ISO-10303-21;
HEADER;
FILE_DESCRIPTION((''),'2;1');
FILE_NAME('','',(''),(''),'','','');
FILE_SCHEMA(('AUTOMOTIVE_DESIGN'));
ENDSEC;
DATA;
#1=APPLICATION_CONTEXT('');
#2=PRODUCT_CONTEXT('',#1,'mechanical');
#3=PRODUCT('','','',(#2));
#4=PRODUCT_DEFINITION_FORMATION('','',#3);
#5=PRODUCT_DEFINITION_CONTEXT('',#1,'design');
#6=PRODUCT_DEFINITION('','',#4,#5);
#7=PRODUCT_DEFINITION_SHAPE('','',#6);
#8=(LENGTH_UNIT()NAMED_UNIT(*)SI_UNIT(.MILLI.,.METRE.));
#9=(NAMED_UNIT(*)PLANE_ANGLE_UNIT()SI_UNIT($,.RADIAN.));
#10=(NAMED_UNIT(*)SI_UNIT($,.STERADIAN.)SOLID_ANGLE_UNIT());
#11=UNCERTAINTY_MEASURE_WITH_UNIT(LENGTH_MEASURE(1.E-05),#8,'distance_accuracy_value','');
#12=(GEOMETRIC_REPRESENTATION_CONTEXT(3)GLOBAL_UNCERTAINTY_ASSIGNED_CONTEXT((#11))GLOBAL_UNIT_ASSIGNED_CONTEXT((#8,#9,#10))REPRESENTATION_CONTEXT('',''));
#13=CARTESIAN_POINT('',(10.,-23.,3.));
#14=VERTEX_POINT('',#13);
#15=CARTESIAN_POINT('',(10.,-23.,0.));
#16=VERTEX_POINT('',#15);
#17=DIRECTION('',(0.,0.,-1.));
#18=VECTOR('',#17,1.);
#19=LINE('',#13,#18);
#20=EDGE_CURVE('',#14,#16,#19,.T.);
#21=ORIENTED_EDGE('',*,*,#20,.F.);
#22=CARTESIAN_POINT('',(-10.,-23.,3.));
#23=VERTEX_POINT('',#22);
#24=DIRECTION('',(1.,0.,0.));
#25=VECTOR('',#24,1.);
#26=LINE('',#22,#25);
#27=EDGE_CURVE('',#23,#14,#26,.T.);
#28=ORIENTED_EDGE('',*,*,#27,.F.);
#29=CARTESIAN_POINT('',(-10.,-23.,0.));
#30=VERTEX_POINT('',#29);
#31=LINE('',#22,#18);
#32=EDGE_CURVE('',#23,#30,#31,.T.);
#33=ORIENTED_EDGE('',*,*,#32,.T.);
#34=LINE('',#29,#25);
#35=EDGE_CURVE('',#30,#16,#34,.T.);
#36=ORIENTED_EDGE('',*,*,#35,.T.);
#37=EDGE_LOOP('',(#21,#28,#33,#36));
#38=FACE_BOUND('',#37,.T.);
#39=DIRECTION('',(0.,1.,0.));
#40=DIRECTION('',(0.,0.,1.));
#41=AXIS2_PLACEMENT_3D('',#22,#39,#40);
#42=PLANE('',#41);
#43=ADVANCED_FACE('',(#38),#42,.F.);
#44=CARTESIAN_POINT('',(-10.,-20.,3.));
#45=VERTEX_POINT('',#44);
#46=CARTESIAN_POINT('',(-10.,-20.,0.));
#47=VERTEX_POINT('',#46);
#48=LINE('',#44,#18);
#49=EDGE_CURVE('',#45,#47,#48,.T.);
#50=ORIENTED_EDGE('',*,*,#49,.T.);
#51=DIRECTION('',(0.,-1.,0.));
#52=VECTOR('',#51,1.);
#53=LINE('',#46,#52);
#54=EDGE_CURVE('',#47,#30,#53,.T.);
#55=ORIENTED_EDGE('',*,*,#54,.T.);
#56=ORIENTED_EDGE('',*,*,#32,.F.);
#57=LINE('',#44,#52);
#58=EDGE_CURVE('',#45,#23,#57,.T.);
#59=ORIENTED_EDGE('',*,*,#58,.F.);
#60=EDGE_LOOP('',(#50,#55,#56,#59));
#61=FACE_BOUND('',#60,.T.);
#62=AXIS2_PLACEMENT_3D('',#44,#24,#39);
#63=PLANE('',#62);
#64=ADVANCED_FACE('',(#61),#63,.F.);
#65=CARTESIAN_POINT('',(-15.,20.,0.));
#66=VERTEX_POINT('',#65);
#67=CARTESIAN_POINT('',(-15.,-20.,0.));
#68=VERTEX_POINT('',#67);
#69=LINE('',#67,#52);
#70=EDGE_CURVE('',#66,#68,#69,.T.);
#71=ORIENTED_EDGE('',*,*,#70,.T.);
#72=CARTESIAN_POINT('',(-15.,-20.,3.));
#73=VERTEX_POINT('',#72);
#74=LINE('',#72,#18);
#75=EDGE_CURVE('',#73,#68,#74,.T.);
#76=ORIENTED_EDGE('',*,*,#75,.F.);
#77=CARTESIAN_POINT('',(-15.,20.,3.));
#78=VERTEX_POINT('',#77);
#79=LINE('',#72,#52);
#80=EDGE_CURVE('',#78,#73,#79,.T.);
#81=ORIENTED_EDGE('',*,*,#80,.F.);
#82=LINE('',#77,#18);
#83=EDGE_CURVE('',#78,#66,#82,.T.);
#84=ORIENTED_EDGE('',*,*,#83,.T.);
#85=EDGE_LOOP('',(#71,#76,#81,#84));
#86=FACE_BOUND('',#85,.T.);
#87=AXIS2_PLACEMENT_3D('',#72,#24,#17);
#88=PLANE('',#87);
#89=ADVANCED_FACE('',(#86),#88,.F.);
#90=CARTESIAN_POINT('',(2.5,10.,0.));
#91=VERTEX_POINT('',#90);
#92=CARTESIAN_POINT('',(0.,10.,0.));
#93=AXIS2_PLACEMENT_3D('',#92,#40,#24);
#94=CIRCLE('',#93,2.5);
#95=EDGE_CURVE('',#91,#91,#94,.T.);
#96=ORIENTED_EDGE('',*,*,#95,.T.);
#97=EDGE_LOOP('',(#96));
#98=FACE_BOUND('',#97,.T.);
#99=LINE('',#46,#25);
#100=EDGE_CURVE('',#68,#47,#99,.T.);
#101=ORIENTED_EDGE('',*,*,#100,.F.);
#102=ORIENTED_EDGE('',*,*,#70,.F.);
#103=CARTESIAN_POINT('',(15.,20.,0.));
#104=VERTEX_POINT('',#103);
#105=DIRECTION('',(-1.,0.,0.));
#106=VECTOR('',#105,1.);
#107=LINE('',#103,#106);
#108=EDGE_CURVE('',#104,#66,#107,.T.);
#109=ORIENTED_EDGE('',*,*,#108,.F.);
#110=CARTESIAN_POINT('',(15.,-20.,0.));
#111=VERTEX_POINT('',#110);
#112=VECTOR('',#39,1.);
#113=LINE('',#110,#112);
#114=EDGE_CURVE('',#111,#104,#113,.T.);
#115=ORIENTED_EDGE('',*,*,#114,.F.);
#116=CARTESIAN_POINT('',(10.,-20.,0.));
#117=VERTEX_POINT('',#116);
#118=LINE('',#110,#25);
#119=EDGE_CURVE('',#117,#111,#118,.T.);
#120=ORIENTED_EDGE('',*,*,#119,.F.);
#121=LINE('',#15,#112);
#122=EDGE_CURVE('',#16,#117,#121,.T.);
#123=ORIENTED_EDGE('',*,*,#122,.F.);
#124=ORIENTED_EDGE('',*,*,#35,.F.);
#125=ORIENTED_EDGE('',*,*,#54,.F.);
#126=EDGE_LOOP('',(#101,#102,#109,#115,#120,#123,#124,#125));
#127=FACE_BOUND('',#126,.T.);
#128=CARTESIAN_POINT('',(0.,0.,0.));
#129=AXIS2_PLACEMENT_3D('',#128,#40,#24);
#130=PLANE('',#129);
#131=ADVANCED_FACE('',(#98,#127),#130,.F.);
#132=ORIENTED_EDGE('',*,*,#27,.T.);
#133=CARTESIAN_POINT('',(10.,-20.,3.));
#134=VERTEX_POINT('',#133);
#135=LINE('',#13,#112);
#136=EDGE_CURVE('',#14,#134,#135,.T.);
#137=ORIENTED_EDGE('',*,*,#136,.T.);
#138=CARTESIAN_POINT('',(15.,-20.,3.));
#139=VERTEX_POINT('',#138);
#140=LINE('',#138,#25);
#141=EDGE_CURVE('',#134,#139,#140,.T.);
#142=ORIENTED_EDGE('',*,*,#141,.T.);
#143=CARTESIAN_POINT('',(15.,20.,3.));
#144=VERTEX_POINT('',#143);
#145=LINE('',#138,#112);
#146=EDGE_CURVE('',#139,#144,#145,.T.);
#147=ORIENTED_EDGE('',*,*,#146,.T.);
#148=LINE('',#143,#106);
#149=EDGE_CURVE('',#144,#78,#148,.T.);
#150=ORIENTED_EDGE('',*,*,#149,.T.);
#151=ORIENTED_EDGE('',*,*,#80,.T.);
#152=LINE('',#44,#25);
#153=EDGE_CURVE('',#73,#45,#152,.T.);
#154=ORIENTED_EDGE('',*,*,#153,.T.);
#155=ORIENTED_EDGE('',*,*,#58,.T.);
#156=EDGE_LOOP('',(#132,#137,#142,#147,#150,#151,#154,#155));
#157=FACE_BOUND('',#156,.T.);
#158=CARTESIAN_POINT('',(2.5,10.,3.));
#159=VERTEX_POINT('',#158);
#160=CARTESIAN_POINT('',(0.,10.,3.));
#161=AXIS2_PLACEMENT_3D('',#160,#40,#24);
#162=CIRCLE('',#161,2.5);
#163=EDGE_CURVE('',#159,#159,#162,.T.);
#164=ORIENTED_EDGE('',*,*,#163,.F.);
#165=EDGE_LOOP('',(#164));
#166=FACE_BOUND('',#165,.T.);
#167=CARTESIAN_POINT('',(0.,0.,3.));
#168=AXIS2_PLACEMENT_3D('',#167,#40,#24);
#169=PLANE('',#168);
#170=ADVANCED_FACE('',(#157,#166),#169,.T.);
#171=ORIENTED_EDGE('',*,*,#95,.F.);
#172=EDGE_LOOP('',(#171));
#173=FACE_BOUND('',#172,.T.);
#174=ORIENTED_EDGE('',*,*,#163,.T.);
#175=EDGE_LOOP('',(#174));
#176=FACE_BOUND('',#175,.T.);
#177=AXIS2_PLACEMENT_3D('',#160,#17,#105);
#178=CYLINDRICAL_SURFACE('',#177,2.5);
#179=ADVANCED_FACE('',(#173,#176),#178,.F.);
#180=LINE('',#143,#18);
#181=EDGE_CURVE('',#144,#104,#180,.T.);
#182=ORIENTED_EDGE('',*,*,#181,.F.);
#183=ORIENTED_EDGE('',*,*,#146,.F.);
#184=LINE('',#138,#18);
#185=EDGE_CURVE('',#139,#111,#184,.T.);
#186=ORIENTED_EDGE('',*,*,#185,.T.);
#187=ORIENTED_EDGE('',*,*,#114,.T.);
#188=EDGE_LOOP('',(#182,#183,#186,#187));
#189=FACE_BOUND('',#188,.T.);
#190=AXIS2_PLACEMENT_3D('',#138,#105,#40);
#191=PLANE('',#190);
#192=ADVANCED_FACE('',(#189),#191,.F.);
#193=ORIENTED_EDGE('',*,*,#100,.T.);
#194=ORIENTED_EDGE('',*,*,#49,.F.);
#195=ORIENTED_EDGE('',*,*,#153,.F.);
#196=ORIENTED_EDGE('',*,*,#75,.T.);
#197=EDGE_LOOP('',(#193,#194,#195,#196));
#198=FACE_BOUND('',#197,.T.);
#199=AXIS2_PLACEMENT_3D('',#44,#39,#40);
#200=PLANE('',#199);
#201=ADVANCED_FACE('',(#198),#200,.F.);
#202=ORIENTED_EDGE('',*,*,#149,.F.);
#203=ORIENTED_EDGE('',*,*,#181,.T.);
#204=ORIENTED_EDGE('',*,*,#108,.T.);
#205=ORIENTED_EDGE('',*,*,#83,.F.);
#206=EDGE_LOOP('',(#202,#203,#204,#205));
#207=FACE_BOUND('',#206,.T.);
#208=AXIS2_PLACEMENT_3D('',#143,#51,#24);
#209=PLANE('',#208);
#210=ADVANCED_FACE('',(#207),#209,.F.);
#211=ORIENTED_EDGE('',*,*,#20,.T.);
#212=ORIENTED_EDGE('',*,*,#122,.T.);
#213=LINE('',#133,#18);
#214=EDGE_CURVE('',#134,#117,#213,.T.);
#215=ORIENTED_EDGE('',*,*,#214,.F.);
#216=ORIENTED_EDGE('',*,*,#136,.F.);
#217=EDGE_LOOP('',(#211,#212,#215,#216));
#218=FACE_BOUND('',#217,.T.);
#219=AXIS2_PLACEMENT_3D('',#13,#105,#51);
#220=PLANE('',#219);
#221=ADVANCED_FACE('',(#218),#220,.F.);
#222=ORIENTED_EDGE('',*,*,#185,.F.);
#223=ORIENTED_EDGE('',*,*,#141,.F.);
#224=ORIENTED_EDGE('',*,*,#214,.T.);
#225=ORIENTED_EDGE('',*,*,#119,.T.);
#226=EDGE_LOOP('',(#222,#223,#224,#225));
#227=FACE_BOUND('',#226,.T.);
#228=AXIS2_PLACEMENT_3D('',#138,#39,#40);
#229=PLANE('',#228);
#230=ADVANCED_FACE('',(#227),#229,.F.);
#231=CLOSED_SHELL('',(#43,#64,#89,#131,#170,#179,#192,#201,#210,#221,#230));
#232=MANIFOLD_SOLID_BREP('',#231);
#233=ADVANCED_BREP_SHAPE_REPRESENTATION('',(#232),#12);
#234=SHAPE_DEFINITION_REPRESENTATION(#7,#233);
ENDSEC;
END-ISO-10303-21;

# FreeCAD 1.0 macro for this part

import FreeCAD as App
import Part
import Sketcher
Q = App.Units.Quantity


def add_polygon(sketch, points):
    """Adds a closed chain of lines whose ends are joined by coincident constraints."""
    first, n = sketch.GeometryCount, len(points)
    for a, b in zip(points, points[1:] + points[:1]):
        sketch.addGeometry(Part.LineSegment(App.Vector(*a, 0), App.Vector(*b, 0)), False)
    for i in range(n):
        sketch.addConstraint(Sketcher.Constraint("Coincident", first + i, 2, first + (i + 1) % n, 1))

doc = App.newDocument("Part")
body = doc.addObject("PartDesign::Body", "Body")

# Sketch on XY plane
sketch1 = body.newObject("Sketcher::SketchObject", "Sketch")
sketch1.AttachmentSupport = (doc.getObject("XY_Plane"), [""])
sketch1.MapMode = "FlatFace"
add_polygon(sketch1, [(-10, -20), (-10, -23), (10, -23), (10, -20), (15, -20), (15, 20), (-15, 20), (-15, -20)])  # lines 0-7
sketch1.addGeometry(Part.Circle(App.Vector(0, 10, 0), App.Vector(0, 0, 1), 2.5), False)  # 8
sketch1.addConstraint([
    Sketcher.Constraint("Vertical", 0),
    Sketcher.Constraint("Horizontal", 1),
    Sketcher.Constraint("Vertical", 2),
    Sketcher.Constraint("Horizontal", 3),
    Sketcher.Constraint("Vertical", 4),
    Sketcher.Constraint("Horizontal", 5),
    Sketcher.Constraint("Vertical", 6),
    Sketcher.Constraint("Horizontal", 7),
    Sketcher.Constraint("Symmetric", 3, 2, 5, 2, -1, 1),
    Sketcher.Constraint("Symmetric", 2, 2, 7, 2, -2),
    Sketcher.Constraint("PointOnObject", 8, 3, -2),
    Sketcher.Constraint("Diameter", 8, Q("5 mm")),
    Sketcher.Constraint("DistanceX", 1, 1, 1, 2, Q("20 mm")),
    Sketcher.Constraint("DistanceX", 3, 1, 3, 2, Q("5 mm")),
    Sketcher.Constraint("DistanceY", 0, 2, 0, 1, Q("3 mm")),
    Sketcher.Constraint("DistanceY", 4, 1, 4, 2, Q("40 mm")),
    Sketcher.Constraint("DistanceY", -1, 1, 8, 3, Q("10 mm")),
])
pad1 = body.newObject("PartDesign::Pad", "Pad")
pad1.Profile = sketch1
pad1.Length = 3

doc.recompute()
